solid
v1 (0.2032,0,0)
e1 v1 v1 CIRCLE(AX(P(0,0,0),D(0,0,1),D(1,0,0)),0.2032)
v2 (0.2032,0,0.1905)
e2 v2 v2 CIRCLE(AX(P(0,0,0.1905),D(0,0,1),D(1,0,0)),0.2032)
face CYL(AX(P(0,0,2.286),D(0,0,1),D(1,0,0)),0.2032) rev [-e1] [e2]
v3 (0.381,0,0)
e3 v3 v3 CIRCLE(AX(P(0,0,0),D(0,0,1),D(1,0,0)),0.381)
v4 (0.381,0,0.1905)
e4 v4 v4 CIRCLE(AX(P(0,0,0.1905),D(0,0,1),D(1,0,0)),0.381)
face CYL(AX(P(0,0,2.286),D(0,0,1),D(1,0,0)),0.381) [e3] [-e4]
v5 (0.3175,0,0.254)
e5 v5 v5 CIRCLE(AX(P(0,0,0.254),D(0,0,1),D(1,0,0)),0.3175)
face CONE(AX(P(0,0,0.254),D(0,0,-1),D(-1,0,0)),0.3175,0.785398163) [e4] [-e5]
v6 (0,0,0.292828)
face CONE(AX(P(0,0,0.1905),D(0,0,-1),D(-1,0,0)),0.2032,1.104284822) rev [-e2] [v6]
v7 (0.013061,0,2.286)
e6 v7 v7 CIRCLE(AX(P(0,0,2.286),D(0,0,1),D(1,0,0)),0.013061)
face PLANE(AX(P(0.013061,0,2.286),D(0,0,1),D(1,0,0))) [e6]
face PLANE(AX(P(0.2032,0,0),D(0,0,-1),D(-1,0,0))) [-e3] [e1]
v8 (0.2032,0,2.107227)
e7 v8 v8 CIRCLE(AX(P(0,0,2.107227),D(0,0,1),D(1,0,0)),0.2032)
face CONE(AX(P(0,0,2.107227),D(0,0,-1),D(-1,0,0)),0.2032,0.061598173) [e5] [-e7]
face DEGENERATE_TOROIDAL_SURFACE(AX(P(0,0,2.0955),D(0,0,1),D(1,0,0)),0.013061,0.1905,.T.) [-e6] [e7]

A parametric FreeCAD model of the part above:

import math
import FreeCAD as App
import Part
import Sketcher

V = App.Vector
Q = App.Units.Quantity

doc = App.newDocument("Part")
body = doc.addObject("PartDesign::Body", "Body")

sketch1 = doc.addObject("Sketcher::SketchObject", "Sketch")
body.addObject(sketch1)
sketch1.AttachmentSupport = (doc.XZ_Plane, [""])
sketch1.MapMode = "FlatFace"
sketch1.addGeometry(Part.LineSegment(V(0.381, 0, 0), V(0.203, 0, 0)), False)
sketch1.addGeometry(Part.LineSegment(V(0.203, 0, 0), V(0.203, 0.191, 0)), False)
sketch1.addGeometry(Part.LineSegment(V(0.203, 0.191, 0), V(0, 0.293, 0)), False)
sketch1.addGeometry(Part.LineSegment(V(0, 0.293, 0), V(0, 2.286, 0)), False)
sketch1.addGeometry(Part.LineSegment(V(0, 2.286, 0), V(0.013, 2.286, 0)), False)
sketch1.addGeometry(Part.ArcOfCircle(Part.Circle(V(0.013, 2.095, 0), V(0, 0, 1), 0.191), math.radians(4), math.radians(90)), False)
sketch1.addGeometry(Part.LineSegment(V(0.203, 2.107, 0), V(0.318, 0.254, 0)), False)
sketch1.addGeometry(Part.LineSegment(V(0.318, 0.254, 0), V(0.381, 0.191, 0)), False)
sketch1.addGeometry(Part.LineSegment(V(0.381, 0.191, 0), V(0.381, 0, 0)), False)
sketch1.addConstraint(Sketcher.Constraint("Coincident", 0, 2, 1, 1))
sketch1.addConstraint(Sketcher.Constraint("Coincident", 1, 2, 2, 1))
sketch1.addConstraint(Sketcher.Constraint("Coincident", 2, 2, 3, 1))
sketch1.addConstraint(Sketcher.Constraint("Coincident", 3, 2, 4, 1))
sketch1.addConstraint(Sketcher.Constraint("Tangent", 4, 2, 5, 2))
sketch1.addConstraint(Sketcher.Constraint("Tangent", 5, 1, 6, 1))
sketch1.addConstraint(Sketcher.Constraint("Coincident", 6, 2, 7, 1))
sketch1.addConstraint(Sketcher.Constraint("Coincident", 7, 2, 8, 1))
sketch1.addConstraint(Sketcher.Constraint("Coincident", 8, 2, 0, 1))
sketch1.addConstraint(Sketcher.Constraint("Horizontal", 0))
sketch1.addConstraint(Sketcher.Constraint("Vertical", 1))
sketch1.addConstraint(Sketcher.Constraint("Vertical", 3))
sketch1.addConstraint(Sketcher.Constraint("Horizontal", 4))
sketch1.addConstraint(Sketcher.Constraint("Vertical", 8))
sketch1.addConstraint(Sketcher.Constraint("PointOnObject", 0, 2, -1))
sketch1.addConstraint(Sketcher.Constraint("PointOnObject", 2, 2, -2))
sketch1.addConstraint(Sketcher.Constraint("Horizontal", 1, 2, 7, 2))
sketch1.addConstraint(Sketcher.Constraint("Vertical", 1, 2, 5, 1))
sketch1.addConstraint(Sketcher.Constraint("Angle", 7, Q("-45 deg")))
sketch1.addConstraint(Sketcher.Constraint("Radius", 5, Q("0.0075 in")))
sketch1.addConstraint(Sketcher.Constraint("DistanceX", 0, 2, 0, 1, Q("0.007 in")))
sketch1.addConstraint(Sketcher.Constraint("DistanceY", -1, 1, 3, 2, Q("0.09 in")))
sketch1.addConstraint(Sketcher.Constraint("DistanceY", -1, 1, 6, 2, Q("0.01 in")))
sketch1.addConstraint(Sketcher.Constraint("DistanceY", 1, 1, 1, 2, Q("0.0075 in")))
sketch1.addConstraint(Sketcher.Constraint("DistanceX", -1, 1, 0, 2, Q("0.008 in")))
sketch1.addConstraint(Sketcher.Constraint("DistanceY", 3, 1, 3, 2, 1.993172))
revolution = doc.addObject("PartDesign::Revolution", "Revolution")
body.addObject(revolution)
revolution.Profile = sketch1
revolution.ReferenceAxis = (sketch1, ["V_Axis"])
revolution.Angle = 360

doc.recompute()
